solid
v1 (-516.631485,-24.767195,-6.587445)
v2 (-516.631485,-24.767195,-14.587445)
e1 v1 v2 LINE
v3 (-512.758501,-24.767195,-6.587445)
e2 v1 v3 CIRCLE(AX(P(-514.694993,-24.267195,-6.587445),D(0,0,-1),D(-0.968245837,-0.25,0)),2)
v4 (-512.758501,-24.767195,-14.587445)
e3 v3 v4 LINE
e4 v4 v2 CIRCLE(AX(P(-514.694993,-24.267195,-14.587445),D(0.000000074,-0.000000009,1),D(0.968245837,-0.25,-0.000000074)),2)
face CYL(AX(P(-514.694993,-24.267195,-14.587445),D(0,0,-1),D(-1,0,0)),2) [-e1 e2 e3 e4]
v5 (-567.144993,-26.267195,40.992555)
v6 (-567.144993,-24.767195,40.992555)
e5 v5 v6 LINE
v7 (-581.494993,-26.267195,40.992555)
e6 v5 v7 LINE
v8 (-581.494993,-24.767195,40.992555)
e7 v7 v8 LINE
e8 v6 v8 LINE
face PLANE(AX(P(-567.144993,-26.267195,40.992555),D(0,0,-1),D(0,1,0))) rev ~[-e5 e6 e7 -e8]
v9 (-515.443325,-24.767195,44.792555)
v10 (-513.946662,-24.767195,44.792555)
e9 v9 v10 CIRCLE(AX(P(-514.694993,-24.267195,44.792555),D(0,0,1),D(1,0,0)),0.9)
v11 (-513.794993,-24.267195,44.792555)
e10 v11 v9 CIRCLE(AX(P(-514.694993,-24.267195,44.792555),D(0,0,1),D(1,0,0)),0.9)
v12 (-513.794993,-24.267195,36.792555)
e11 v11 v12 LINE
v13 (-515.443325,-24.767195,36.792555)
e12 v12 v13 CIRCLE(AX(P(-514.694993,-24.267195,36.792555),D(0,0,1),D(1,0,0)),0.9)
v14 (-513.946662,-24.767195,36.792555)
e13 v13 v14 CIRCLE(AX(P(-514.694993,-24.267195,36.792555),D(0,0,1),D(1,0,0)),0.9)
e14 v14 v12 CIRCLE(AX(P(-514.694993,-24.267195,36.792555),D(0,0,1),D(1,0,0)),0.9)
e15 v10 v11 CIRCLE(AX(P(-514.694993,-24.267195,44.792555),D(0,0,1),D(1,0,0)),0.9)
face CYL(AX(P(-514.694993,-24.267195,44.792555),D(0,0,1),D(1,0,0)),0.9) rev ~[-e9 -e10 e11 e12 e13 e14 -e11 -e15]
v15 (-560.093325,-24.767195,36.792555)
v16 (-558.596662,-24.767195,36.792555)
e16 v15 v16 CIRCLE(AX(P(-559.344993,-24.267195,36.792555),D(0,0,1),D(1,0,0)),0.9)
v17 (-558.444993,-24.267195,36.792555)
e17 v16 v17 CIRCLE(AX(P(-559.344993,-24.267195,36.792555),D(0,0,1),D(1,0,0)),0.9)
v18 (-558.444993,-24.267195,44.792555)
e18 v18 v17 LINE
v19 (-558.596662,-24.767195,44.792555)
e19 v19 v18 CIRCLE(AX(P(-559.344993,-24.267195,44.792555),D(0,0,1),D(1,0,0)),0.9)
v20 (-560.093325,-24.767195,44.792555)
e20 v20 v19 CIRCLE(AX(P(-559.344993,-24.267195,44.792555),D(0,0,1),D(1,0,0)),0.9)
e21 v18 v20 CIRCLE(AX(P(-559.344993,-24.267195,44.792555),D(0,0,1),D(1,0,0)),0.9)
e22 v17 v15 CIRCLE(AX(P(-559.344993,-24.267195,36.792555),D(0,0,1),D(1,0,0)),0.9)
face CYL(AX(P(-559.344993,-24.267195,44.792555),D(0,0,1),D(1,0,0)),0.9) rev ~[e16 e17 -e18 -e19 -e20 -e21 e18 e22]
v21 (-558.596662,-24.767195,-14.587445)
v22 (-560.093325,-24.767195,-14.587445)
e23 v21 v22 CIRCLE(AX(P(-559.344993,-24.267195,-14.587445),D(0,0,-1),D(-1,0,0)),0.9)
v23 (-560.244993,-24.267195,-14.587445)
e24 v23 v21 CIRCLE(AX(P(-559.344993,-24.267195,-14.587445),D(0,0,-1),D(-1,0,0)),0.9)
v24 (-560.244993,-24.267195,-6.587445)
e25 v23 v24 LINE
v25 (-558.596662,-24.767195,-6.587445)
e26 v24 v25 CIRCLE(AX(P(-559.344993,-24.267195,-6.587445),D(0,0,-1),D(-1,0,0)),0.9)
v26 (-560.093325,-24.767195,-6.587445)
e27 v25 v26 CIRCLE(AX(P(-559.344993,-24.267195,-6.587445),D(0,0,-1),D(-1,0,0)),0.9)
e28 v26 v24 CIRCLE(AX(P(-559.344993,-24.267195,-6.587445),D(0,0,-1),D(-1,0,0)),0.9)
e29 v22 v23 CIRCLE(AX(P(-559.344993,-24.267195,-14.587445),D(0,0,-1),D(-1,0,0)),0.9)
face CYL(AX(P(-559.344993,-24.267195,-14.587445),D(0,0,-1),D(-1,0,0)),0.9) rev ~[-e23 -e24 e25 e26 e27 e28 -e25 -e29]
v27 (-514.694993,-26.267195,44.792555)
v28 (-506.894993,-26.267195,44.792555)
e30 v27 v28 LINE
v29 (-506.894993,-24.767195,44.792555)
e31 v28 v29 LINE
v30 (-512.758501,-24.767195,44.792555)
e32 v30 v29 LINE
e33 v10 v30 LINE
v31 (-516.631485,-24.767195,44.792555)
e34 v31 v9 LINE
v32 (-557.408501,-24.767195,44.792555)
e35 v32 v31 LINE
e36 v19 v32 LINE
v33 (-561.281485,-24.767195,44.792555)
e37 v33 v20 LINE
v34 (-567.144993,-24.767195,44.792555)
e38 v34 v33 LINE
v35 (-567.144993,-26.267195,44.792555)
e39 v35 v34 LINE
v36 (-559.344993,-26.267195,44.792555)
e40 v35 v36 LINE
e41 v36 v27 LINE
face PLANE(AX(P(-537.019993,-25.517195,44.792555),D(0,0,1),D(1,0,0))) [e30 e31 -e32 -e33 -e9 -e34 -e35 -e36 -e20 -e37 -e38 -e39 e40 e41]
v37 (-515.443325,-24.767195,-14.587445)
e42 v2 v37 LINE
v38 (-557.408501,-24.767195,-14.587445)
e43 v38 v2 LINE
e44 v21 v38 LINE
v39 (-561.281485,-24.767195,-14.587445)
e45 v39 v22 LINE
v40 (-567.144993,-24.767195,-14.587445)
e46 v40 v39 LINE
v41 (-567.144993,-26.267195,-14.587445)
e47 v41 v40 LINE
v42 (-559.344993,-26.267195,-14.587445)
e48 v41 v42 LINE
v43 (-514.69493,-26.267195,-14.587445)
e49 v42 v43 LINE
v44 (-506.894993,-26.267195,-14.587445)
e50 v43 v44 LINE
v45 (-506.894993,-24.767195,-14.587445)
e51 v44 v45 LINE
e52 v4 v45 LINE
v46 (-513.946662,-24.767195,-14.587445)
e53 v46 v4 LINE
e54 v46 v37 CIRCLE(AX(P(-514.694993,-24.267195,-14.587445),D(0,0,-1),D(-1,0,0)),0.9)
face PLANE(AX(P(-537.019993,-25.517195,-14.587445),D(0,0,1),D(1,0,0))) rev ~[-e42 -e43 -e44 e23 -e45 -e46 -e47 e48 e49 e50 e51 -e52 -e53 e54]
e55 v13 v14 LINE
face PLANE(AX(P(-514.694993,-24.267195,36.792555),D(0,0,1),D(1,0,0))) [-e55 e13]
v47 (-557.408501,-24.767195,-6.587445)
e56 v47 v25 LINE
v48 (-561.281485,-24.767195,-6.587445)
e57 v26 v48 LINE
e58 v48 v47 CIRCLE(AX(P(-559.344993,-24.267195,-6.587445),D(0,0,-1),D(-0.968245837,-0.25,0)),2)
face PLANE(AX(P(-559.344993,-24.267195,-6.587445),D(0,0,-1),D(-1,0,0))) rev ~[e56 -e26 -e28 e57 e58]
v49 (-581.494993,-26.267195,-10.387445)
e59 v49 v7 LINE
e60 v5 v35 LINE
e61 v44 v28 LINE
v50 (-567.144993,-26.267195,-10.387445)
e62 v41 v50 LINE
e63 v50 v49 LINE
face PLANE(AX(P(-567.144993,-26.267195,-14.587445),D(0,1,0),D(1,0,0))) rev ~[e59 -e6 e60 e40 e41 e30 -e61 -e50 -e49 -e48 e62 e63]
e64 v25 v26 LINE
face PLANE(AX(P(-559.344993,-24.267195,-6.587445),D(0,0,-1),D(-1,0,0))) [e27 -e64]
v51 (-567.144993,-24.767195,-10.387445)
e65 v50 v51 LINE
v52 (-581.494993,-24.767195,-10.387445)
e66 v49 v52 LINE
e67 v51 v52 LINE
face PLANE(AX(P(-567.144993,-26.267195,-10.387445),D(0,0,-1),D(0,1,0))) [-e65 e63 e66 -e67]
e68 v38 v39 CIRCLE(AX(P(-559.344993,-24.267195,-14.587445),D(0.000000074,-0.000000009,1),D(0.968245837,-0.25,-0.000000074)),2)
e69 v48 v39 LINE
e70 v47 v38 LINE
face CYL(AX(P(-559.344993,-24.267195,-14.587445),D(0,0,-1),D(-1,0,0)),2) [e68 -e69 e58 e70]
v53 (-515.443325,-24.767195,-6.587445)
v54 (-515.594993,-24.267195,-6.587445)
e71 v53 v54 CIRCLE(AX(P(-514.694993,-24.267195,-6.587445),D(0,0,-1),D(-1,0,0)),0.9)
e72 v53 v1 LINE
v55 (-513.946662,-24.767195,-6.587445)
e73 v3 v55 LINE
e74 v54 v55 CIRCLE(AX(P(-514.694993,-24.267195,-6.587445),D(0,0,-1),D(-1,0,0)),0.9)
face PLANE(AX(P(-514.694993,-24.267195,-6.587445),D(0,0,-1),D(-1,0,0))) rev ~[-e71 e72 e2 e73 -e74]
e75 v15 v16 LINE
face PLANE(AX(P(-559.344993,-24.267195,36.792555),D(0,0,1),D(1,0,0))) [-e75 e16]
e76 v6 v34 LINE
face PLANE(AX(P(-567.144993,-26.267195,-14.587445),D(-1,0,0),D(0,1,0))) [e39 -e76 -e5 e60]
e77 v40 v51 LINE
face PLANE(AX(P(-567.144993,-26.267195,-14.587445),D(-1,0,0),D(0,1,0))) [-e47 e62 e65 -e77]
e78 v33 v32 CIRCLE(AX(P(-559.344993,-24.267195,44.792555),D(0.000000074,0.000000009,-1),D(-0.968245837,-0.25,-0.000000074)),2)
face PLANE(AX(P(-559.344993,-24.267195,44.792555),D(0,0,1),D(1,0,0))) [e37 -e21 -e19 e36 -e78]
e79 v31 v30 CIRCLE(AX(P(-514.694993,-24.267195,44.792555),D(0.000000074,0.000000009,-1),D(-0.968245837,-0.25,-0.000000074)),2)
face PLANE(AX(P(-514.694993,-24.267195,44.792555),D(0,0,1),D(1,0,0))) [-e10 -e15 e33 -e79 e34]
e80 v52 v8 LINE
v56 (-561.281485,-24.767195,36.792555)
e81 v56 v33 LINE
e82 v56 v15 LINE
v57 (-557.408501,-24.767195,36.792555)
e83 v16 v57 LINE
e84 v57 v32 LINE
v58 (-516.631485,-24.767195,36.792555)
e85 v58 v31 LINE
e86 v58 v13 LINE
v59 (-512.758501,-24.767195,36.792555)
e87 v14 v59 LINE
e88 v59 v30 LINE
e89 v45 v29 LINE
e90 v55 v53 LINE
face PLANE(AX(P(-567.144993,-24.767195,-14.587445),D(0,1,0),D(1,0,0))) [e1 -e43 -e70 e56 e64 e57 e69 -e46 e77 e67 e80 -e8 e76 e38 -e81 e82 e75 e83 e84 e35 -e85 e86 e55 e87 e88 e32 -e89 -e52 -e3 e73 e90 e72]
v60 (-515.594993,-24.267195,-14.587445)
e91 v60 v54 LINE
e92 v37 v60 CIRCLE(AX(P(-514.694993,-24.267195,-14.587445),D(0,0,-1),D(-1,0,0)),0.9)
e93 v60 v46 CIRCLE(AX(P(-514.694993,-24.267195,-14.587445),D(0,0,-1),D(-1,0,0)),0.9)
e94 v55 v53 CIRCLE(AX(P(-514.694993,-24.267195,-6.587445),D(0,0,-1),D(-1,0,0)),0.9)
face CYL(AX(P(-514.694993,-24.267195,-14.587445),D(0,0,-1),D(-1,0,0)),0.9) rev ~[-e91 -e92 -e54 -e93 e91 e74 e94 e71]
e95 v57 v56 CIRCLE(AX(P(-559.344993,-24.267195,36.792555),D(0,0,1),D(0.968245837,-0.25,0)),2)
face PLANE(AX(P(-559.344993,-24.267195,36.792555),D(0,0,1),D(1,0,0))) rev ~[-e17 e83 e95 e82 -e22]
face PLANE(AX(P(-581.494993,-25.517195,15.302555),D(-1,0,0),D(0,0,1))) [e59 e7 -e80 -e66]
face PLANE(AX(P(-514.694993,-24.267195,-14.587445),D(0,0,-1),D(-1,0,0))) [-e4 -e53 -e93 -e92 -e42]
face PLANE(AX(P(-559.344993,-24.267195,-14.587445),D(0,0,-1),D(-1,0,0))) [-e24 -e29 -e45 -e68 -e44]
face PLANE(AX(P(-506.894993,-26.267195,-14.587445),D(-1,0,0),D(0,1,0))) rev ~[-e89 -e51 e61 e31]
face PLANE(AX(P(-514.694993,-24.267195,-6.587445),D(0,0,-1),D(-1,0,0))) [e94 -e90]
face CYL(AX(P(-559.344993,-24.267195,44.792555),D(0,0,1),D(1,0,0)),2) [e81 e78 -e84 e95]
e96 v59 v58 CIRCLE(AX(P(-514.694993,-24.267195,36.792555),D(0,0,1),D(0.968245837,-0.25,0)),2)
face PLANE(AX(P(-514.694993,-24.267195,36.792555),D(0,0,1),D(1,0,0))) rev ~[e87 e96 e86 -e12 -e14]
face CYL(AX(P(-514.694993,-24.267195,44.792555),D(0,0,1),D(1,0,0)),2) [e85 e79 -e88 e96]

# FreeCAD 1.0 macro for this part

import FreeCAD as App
import Part
import Sketcher


def add_polygon(sketch, points):
    """Adds a closed chain of lines whose ends are joined by coincident constraints."""
    first, n = sketch.GeometryCount, len(points)
    for a, b in zip(points, points[1:] + points[:1]):
        sketch.addGeometry(Part.LineSegment(App.Vector(*a, 0), App.Vector(*b, 0)), False)
    for i in range(n):
        sketch.addConstraint(Sketcher.Constraint("Coincident", first + i, 2, first + (i + 1) % n, 1))

doc = App.newDocument("Part")
body = doc.addObject("PartDesign::Body", "Body")

# Sketch on XY plane
sketch1 = body.newObject("Sketcher::SketchObject", "Sketch")
sketch1.AttachmentSupport = (doc.getObject("XY_Plane"), [""])
sketch1.MapMode = "FlatFace"
sketch1.AttachmentOffset = App.Placement(App.Vector(0, 0, -14.587445), App.Rotation())
add_polygon(sketch1, [(-567.1, -24.8), (-567.1, -26.3), (-506.9, -26.3), (-506.9, -24.8)])  # lines 0-3
sketch1.addConstraint([
    Sketcher.Constraint("Vertical", 0),
    Sketcher.Constraint("Horizontal", 1),
    Sketcher.Constraint("Vertical", 2),
    Sketcher.Constraint("Horizontal", 3),
    Sketcher.Constraint("DistanceY", 0, 2, 0, 1, 1.5),
    Sketcher.Constraint("DistanceX", 1, 1, 1, 2, 60.25),
    Sketcher.Constraint("DistanceX", 0, 2, -1, 1, 567.144993),
    Sketcher.Constraint("DistanceY", 0, 2, -1, 1, 26.267195),
])
pad1 = body.newObject("PartDesign::Pad", "Pad")
pad1.Profile = sketch1
pad1.Length = 59.38

# Sketch on YZ plane
sketch2 = body.newObject("Sketcher::SketchObject", "Sketch001")
sketch2.AttachmentSupport = (doc.getObject("YZ_Plane"), [""])
sketch2.MapMode = "FlatFace"
sketch2.AttachmentOffset = App.Placement(App.Vector(0, 0, -567.144993), App.Rotation())
add_polygon(sketch2, [(-24.8, -10.4), (-26.3, -10.4), (-26.3, 41), (-24.8, 41)])  # lines 0-3
sketch2.addConstraint([
    Sketcher.Constraint("Horizontal", 0),
    Sketcher.Constraint("Vertical", 1),
    Sketcher.Constraint("Horizontal", 2),
    Sketcher.Constraint("Vertical", 3),
    Sketcher.Constraint("DistanceX", 0, 2, 0, 1, 1.5),
    Sketcher.Constraint("DistanceY", 1, 1, 1, 2, 51.38),
    Sketcher.Constraint("DistanceX", 0, 2, -1, 1, 26.267195),
    Sketcher.Constraint("DistanceY", 0, 2, -1, 1, 10.387445),
])
pad2 = body.newObject("PartDesign::Pad", "Pad001")
pad2.Profile = sketch2
pad2.Length = 14.35
pad2.Reversed = True

# Sketch on XY plane
sketch3 = body.newObject("Sketcher::SketchObject", "Sketch002")
sketch3.AttachmentSupport = (doc.getObject("XY_Plane"), [""])
sketch3.MapMode = "FlatFace"
sketch3.AttachmentOffset = App.Placement(App.Vector(0, 0, -14.587445), App.Rotation())
sketch3.addGeometry([
    Part.Circle(App.Vector(-559.3, -24.3, 0), App.Vector(0, 0, 1), 2),
    Part.Circle(App.Vector(-514.7, -24.3, 0), App.Vector(0, 0, 1), 2),
], False)
sketch3.addConstraint([
    Sketcher.Constraint("Equal", 0, 1),
    Sketcher.Constraint("Horizontal", 0, 3, 1, 3),
    Sketcher.Constraint("Diameter", 0, 4.0),
    Sketcher.Constraint("DistanceX", 0, 3, 1, 3, 44.65),
    Sketcher.Constraint("DistanceX", 0, 3, -1, 1, 559.344993),
    Sketcher.Constraint("DistanceY", 0, 3, -1, 1, 24.267195),
])
pad3 = body.newObject("PartDesign::Pad", "Pad002")
pad3.Profile = sketch3
pad3.Length = 8

# Sketch on XY plane
sketch4 = body.newObject("Sketcher::SketchObject", "Sketch003")
sketch4.AttachmentSupport = (doc.getObject("XY_Plane"), [""])
sketch4.MapMode = "FlatFace"
sketch4.AttachmentOffset = App.Placement(App.Vector(0, 0, -14.587445), App.Rotation())
sketch4.addGeometry([
    Part.Circle(App.Vector(-559.3, -24.3, 0), App.Vector(0, 0, 1), 0.9),
    Part.Circle(App.Vector(-514.7, -24.3, 0), App.Vector(0, 0, 1), 0.9),
], False)
sketch4.addConstraint([
    Sketcher.Constraint("Equal", 0, 1),
    Sketcher.Constraint("Horizontal", 0, 3, 1, 3),
    Sketcher.Constraint("Diameter", 0, 1.8),
    Sketcher.Constraint("DistanceX", 0, 3, 1, 3, 44.65),
    Sketcher.Constraint("DistanceX", 0, 3, -1, 1, 559.344993),
    Sketcher.Constraint("DistanceY", 0, 3, -1, 1, 24.267195),
])
pocket1 = body.newObject("PartDesign::Pocket", "Pocket")
pocket1.Profile = sketch4
pocket1.Length = 8
pocket1.Reversed = True

# Sketch on XY plane
sketch5 = body.newObject("Sketcher::SketchObject", "Sketch004")
sketch5.AttachmentSupport = (doc.getObject("XY_Plane"), [""])
sketch5.MapMode = "FlatFace"
sketch5.AttachmentOffset = App.Placement(App.Vector(0, 0, 44.792555), App.Rotation())
sketch5.addGeometry([
    Part.Circle(App.Vector(-559.3, -24.3, 0), App.Vector(0, 0, 1), 2),
    Part.Circle(App.Vector(-514.7, -24.3, 0), App.Vector(0, 0, 1), 2),
], False)
sketch5.addConstraint([
    Sketcher.Constraint("Equal", 0, 1),
    Sketcher.Constraint("Horizontal", 0, 3, 1, 3),
    Sketcher.Constraint("Diameter", 0, 4.0),
    Sketcher.Constraint("DistanceX", 0, 3, 1, 3, 44.65),
    Sketcher.Constraint("DistanceX", 0, 3, -1, 1, 559.344993),
    Sketcher.Constraint("DistanceY", 0, 3, -1, 1, 24.267195),
])
pad4 = body.newObject("PartDesign::Pad", "Pad003")
pad4.Profile = sketch5
pad4.Length = 8
pad4.Reversed = True

# Sketch on XY plane
sketch6 = body.newObject("Sketcher::SketchObject", "Sketch005")
sketch6.AttachmentSupport = (doc.getObject("XY_Plane"), [""])
sketch6.MapMode = "FlatFace"
sketch6.AttachmentOffset = App.Placement(App.Vector(0, 0, 44.792555), App.Rotation())
sketch6.addGeometry([
    Part.Circle(App.Vector(-514.7, -24.3, 0), App.Vector(0, 0, 1), 0.9),
    Part.Circle(App.Vector(-559.3, -24.3, 0), App.Vector(0, 0, 1), 0.9),
], False)
sketch6.addConstraint([
    Sketcher.Constraint("Equal", 0, 1),
    Sketcher.Constraint("Horizontal", 0, 3, 1, 3),
    Sketcher.Constraint("Diameter", 0, 1.8),
    Sketcher.Constraint("DistanceX", 1, 3, 0, 3, 44.65),
    Sketcher.Constraint("DistanceX", 0, 3, -1, 1, 514.694993),
    Sketcher.Constraint("DistanceY", 0, 3, -1, 1, 24.267195),
])
pocket2 = body.newObject("PartDesign::Pocket", "Pocket001")
pocket2.Profile = sketch6
pocket2.Length = 8

doc.recompute()
